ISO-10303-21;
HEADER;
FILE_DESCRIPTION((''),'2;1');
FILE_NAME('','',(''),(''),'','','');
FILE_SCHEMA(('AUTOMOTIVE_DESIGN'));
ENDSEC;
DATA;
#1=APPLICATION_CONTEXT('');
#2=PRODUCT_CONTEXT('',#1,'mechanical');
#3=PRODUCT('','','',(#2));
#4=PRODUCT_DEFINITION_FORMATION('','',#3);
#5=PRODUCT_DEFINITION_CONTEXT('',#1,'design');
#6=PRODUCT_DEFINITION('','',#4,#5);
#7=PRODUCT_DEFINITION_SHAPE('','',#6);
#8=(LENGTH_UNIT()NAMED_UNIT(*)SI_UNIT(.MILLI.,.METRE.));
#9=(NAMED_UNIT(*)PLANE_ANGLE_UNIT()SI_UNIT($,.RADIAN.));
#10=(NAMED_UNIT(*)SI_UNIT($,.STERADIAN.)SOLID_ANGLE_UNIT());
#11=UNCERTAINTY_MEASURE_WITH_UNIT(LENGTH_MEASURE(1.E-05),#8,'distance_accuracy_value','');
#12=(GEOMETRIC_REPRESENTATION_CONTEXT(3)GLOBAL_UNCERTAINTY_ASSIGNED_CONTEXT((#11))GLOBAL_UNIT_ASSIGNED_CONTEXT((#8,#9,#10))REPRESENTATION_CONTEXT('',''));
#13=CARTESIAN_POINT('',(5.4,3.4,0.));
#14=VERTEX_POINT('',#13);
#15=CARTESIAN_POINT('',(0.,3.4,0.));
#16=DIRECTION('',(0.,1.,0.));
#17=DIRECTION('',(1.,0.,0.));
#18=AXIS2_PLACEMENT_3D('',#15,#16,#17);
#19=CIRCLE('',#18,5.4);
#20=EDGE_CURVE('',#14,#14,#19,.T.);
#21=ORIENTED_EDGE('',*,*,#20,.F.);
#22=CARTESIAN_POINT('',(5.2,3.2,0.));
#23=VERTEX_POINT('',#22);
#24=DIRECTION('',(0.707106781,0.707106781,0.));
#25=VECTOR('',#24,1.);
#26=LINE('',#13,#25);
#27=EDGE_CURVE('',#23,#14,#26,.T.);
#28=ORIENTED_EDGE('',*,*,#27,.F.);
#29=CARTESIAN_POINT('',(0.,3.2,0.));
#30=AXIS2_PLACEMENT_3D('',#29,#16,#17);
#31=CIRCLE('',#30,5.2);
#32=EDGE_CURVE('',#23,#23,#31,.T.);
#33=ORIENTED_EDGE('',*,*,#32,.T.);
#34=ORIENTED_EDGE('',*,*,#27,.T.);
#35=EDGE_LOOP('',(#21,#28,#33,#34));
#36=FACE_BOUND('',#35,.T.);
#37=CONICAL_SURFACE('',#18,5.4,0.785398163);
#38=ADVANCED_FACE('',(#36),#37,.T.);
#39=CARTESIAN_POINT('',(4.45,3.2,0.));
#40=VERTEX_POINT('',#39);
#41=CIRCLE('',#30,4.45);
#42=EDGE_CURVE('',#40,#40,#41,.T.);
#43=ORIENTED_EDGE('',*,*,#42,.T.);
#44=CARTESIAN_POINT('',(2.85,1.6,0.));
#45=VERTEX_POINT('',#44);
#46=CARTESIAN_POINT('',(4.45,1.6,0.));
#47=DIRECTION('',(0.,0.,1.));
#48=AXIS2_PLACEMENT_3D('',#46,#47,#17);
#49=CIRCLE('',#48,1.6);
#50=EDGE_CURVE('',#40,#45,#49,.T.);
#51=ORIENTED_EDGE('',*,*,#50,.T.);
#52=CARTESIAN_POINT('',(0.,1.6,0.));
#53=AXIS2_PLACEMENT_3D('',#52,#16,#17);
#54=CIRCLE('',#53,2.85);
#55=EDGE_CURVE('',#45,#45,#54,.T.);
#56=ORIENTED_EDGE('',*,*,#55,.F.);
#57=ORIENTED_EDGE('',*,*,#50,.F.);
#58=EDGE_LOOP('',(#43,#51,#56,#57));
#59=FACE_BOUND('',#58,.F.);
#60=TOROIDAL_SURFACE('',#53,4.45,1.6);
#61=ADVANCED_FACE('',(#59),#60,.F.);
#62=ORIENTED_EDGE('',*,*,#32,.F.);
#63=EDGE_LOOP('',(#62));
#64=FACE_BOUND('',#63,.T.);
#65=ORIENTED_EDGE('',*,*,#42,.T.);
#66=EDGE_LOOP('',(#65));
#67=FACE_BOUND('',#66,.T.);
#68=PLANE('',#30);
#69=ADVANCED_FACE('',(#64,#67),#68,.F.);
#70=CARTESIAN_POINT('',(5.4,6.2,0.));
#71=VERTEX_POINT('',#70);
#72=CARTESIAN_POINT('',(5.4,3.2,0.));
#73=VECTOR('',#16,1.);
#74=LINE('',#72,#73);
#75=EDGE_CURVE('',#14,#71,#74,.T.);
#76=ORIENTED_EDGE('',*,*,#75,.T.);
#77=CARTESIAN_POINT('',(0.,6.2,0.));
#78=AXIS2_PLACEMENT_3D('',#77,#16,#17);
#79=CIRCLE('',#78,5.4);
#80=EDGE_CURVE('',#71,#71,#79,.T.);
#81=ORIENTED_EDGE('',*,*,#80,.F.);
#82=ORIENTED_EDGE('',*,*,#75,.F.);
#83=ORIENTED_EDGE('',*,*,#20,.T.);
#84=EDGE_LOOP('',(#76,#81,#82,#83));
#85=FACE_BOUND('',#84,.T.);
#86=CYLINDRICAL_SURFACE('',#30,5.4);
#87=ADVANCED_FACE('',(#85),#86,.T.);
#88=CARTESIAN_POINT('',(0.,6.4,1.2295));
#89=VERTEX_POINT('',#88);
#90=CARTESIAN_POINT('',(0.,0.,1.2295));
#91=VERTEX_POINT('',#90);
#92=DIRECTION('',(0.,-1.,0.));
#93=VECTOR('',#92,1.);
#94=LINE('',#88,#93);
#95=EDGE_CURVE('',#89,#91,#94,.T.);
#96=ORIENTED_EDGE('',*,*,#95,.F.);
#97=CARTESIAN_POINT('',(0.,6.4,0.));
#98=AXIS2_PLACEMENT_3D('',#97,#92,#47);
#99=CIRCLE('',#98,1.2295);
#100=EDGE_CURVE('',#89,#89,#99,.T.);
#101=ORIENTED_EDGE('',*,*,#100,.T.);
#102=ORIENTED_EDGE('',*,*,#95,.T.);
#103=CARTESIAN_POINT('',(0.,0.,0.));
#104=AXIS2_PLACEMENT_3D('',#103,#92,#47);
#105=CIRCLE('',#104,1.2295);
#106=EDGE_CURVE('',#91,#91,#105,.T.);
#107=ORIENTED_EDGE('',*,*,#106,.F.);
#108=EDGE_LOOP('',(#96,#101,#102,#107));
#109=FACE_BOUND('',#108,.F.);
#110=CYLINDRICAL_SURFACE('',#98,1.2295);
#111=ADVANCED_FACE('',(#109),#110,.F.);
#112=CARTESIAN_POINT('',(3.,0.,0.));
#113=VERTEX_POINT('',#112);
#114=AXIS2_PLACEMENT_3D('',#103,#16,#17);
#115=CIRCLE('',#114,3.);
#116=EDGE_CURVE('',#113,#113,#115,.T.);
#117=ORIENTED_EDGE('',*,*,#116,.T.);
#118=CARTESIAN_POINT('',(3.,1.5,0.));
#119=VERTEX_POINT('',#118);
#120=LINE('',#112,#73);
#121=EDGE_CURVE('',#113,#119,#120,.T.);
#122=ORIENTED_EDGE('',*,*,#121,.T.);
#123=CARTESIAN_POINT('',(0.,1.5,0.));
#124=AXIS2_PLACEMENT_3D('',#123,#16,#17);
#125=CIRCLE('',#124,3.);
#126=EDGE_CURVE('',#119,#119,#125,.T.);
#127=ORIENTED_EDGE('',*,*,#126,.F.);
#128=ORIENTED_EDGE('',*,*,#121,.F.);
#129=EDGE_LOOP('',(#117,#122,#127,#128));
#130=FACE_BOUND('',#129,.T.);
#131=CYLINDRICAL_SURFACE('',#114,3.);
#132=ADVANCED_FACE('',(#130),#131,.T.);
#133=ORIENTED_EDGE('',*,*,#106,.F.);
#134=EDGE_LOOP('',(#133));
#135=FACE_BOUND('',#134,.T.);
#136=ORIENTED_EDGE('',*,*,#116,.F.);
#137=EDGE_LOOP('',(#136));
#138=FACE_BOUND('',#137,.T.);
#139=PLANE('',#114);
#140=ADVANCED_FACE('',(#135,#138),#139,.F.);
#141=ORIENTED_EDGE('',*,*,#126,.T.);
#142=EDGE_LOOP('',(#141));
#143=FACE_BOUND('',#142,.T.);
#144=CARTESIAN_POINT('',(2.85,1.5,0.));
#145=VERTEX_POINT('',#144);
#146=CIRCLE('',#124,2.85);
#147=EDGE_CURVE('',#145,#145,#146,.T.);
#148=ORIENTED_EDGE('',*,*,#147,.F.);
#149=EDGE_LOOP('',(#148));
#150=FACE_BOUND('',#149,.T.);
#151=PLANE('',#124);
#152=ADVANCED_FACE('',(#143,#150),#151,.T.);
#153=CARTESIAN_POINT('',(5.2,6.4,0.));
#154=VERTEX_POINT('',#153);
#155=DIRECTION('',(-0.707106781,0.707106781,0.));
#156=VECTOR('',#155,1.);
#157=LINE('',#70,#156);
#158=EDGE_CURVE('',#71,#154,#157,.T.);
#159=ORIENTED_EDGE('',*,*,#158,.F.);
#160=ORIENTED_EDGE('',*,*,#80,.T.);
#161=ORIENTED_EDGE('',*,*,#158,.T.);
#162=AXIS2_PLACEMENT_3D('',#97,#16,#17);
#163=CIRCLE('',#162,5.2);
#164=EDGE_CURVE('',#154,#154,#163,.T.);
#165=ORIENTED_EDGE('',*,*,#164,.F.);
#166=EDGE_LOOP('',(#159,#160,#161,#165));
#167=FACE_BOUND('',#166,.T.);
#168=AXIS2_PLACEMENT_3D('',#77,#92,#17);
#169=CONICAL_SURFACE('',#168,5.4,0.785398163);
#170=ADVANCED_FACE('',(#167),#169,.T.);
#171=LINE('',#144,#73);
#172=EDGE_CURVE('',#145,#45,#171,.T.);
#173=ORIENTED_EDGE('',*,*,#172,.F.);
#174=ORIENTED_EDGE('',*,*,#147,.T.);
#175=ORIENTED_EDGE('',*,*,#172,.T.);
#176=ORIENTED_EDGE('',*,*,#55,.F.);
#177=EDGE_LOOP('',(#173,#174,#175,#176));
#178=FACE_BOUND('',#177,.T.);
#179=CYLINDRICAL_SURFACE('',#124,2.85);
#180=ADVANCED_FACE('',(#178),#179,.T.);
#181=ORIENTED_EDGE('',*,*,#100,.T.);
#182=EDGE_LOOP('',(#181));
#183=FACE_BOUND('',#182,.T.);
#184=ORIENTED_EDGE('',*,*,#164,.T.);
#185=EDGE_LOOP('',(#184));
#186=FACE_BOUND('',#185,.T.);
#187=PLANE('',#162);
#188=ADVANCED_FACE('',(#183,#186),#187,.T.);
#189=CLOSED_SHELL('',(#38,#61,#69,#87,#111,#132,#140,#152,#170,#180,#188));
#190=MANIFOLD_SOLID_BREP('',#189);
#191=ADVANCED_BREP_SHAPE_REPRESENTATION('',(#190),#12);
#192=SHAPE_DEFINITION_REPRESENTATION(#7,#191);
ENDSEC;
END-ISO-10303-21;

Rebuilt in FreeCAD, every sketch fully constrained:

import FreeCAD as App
import Part
import Sketcher
from FreeCAD import Vector


def edges_at(feature, points):
    """Names of the edges that pass closest to the given points."""
    edges = feature.Shape.Edges
    near = lambda p: min(range(len(edges)), key=lambda i: edges[i].distToShape(Part.Vertex(*p))[0])
    return sorted({f"Edge{near(p) + 1}" for p in points})


def add_polygon(sketch, points):
    """Adds a closed chain of lines whose ends are joined by coincident constraints."""
    first, n = sketch.GeometryCount, len(points)
    for a, b in zip(points, points[1:] + points[:1]):
        sketch.addGeometry(Part.LineSegment(App.Vector(*a, 0), App.Vector(*b, 0)), False)
    for i in range(n):
        sketch.addConstraint(Sketcher.Constraint("Coincident", first + i, 2, first + (i + 1) % n, 1))

doc = App.newDocument("Part")
body = doc.addObject("PartDesign::Body", "Body")

# Sketch on XY plane
sketch1 = body.newObject("Sketcher::SketchObject", "Sketch")
sketch1.AttachmentSupport = (doc.getObject("XY_Plane"), [""])
sketch1.MapMode = "FlatFace"
add_polygon(sketch1, [(0, 6.4), (0, 0), (3, 0), (3, 1.5), (2.85, 1.5), (2.85, 3.2), (5.4, 3.2), (5.4, 6.4)])  # lines 0-7
sketch1.addConstraint(Sketcher.Constraint("Vertical", 0))
sketch1.addConstraint(Sketcher.Constraint("Horizontal", 1))
sketch1.addConstraint(Sketcher.Constraint("Vertical", 2))
sketch1.addConstraint(Sketcher.Constraint("Horizontal", 3))
sketch1.addConstraint(Sketcher.Constraint("Vertical", 4))
sketch1.addConstraint(Sketcher.Constraint("Horizontal", 5))
sketch1.addConstraint(Sketcher.Constraint("Vertical", 6))
sketch1.addConstraint(Sketcher.Constraint("Horizontal", 7))
sketch1.addConstraint(Sketcher.Constraint("Coincident", 0, 2, -1, 1))
sketch1.addConstraint(Sketcher.Constraint("DistanceY", 0, 2, 0, 1, 6.4))
sketch1.addConstraint(Sketcher.Constraint("DistanceY", 2, 1, 2, 2, 1.5))
sketch1.addConstraint(Sketcher.Constraint("DistanceY", 6, 1, 6, 2, 3.2))
sketch1.addConstraint(Sketcher.Constraint("DistanceX", 1, 1, 1, 2, 3.0))
sketch1.addConstraint(Sketcher.Constraint("DistanceX", 7, 2, 7, 1, 5.4))
sketch1.addConstraint(Sketcher.Constraint("DistanceX", 3, 2, 3, 1, 0.15))
revolution = body.newObject("PartDesign::Revolution", "Revolution")
revolution.Profile = sketch1
revolution.ReferenceAxis = (sketch1, ["V_Axis"])
revolution.Angle = 360
doc.recompute()

fillet = body.newObject("PartDesign::Fillet", "Fillet")
fillet.Base = (revolution, edges_at(revolution, [(-2.85, 3.2, 0)]))
fillet.Radius = 1.6
doc.recompute()

chamfer = body.newObject("PartDesign::Chamfer", "Chamfer")
chamfer.Base = (fillet, edges_at(fillet, [(-5.4, 6.4, 0), (-5.4, 3.2, 0)]))
chamfer.Size = 0.2

# Sketch on XZ plane
sketch2 = body.newObject("Sketcher::SketchObject", "Sketch001")
sketch2.AttachmentSupport = (doc.getObject("XZ_Plane"), [""])
sketch2.MapMode = "FlatFace"
sketch2.AttachmentOffset = App.Placement(Vector(0, 0, -6.4), App.Rotation())
sketch2.addGeometry(Part.Circle(Vector(0, 0, 0), Vector(0, 0, 1), 1.2), False)
sketch2.addConstraint(Sketcher.Constraint("Coincident", 0, 3, -1, 1))
sketch2.addConstraint(Sketcher.Constraint("Diameter", 0, 2.459))
doc.recompute()
hole = body.newObject("PartDesign::Hole", "Hole")
hole.Profile = sketch2
hole.ThreadType = "None"
hole.Diameter = 2.459
hole.DepthType = "ThroughAll"
hole.Reversed = True

doc.recompute()
